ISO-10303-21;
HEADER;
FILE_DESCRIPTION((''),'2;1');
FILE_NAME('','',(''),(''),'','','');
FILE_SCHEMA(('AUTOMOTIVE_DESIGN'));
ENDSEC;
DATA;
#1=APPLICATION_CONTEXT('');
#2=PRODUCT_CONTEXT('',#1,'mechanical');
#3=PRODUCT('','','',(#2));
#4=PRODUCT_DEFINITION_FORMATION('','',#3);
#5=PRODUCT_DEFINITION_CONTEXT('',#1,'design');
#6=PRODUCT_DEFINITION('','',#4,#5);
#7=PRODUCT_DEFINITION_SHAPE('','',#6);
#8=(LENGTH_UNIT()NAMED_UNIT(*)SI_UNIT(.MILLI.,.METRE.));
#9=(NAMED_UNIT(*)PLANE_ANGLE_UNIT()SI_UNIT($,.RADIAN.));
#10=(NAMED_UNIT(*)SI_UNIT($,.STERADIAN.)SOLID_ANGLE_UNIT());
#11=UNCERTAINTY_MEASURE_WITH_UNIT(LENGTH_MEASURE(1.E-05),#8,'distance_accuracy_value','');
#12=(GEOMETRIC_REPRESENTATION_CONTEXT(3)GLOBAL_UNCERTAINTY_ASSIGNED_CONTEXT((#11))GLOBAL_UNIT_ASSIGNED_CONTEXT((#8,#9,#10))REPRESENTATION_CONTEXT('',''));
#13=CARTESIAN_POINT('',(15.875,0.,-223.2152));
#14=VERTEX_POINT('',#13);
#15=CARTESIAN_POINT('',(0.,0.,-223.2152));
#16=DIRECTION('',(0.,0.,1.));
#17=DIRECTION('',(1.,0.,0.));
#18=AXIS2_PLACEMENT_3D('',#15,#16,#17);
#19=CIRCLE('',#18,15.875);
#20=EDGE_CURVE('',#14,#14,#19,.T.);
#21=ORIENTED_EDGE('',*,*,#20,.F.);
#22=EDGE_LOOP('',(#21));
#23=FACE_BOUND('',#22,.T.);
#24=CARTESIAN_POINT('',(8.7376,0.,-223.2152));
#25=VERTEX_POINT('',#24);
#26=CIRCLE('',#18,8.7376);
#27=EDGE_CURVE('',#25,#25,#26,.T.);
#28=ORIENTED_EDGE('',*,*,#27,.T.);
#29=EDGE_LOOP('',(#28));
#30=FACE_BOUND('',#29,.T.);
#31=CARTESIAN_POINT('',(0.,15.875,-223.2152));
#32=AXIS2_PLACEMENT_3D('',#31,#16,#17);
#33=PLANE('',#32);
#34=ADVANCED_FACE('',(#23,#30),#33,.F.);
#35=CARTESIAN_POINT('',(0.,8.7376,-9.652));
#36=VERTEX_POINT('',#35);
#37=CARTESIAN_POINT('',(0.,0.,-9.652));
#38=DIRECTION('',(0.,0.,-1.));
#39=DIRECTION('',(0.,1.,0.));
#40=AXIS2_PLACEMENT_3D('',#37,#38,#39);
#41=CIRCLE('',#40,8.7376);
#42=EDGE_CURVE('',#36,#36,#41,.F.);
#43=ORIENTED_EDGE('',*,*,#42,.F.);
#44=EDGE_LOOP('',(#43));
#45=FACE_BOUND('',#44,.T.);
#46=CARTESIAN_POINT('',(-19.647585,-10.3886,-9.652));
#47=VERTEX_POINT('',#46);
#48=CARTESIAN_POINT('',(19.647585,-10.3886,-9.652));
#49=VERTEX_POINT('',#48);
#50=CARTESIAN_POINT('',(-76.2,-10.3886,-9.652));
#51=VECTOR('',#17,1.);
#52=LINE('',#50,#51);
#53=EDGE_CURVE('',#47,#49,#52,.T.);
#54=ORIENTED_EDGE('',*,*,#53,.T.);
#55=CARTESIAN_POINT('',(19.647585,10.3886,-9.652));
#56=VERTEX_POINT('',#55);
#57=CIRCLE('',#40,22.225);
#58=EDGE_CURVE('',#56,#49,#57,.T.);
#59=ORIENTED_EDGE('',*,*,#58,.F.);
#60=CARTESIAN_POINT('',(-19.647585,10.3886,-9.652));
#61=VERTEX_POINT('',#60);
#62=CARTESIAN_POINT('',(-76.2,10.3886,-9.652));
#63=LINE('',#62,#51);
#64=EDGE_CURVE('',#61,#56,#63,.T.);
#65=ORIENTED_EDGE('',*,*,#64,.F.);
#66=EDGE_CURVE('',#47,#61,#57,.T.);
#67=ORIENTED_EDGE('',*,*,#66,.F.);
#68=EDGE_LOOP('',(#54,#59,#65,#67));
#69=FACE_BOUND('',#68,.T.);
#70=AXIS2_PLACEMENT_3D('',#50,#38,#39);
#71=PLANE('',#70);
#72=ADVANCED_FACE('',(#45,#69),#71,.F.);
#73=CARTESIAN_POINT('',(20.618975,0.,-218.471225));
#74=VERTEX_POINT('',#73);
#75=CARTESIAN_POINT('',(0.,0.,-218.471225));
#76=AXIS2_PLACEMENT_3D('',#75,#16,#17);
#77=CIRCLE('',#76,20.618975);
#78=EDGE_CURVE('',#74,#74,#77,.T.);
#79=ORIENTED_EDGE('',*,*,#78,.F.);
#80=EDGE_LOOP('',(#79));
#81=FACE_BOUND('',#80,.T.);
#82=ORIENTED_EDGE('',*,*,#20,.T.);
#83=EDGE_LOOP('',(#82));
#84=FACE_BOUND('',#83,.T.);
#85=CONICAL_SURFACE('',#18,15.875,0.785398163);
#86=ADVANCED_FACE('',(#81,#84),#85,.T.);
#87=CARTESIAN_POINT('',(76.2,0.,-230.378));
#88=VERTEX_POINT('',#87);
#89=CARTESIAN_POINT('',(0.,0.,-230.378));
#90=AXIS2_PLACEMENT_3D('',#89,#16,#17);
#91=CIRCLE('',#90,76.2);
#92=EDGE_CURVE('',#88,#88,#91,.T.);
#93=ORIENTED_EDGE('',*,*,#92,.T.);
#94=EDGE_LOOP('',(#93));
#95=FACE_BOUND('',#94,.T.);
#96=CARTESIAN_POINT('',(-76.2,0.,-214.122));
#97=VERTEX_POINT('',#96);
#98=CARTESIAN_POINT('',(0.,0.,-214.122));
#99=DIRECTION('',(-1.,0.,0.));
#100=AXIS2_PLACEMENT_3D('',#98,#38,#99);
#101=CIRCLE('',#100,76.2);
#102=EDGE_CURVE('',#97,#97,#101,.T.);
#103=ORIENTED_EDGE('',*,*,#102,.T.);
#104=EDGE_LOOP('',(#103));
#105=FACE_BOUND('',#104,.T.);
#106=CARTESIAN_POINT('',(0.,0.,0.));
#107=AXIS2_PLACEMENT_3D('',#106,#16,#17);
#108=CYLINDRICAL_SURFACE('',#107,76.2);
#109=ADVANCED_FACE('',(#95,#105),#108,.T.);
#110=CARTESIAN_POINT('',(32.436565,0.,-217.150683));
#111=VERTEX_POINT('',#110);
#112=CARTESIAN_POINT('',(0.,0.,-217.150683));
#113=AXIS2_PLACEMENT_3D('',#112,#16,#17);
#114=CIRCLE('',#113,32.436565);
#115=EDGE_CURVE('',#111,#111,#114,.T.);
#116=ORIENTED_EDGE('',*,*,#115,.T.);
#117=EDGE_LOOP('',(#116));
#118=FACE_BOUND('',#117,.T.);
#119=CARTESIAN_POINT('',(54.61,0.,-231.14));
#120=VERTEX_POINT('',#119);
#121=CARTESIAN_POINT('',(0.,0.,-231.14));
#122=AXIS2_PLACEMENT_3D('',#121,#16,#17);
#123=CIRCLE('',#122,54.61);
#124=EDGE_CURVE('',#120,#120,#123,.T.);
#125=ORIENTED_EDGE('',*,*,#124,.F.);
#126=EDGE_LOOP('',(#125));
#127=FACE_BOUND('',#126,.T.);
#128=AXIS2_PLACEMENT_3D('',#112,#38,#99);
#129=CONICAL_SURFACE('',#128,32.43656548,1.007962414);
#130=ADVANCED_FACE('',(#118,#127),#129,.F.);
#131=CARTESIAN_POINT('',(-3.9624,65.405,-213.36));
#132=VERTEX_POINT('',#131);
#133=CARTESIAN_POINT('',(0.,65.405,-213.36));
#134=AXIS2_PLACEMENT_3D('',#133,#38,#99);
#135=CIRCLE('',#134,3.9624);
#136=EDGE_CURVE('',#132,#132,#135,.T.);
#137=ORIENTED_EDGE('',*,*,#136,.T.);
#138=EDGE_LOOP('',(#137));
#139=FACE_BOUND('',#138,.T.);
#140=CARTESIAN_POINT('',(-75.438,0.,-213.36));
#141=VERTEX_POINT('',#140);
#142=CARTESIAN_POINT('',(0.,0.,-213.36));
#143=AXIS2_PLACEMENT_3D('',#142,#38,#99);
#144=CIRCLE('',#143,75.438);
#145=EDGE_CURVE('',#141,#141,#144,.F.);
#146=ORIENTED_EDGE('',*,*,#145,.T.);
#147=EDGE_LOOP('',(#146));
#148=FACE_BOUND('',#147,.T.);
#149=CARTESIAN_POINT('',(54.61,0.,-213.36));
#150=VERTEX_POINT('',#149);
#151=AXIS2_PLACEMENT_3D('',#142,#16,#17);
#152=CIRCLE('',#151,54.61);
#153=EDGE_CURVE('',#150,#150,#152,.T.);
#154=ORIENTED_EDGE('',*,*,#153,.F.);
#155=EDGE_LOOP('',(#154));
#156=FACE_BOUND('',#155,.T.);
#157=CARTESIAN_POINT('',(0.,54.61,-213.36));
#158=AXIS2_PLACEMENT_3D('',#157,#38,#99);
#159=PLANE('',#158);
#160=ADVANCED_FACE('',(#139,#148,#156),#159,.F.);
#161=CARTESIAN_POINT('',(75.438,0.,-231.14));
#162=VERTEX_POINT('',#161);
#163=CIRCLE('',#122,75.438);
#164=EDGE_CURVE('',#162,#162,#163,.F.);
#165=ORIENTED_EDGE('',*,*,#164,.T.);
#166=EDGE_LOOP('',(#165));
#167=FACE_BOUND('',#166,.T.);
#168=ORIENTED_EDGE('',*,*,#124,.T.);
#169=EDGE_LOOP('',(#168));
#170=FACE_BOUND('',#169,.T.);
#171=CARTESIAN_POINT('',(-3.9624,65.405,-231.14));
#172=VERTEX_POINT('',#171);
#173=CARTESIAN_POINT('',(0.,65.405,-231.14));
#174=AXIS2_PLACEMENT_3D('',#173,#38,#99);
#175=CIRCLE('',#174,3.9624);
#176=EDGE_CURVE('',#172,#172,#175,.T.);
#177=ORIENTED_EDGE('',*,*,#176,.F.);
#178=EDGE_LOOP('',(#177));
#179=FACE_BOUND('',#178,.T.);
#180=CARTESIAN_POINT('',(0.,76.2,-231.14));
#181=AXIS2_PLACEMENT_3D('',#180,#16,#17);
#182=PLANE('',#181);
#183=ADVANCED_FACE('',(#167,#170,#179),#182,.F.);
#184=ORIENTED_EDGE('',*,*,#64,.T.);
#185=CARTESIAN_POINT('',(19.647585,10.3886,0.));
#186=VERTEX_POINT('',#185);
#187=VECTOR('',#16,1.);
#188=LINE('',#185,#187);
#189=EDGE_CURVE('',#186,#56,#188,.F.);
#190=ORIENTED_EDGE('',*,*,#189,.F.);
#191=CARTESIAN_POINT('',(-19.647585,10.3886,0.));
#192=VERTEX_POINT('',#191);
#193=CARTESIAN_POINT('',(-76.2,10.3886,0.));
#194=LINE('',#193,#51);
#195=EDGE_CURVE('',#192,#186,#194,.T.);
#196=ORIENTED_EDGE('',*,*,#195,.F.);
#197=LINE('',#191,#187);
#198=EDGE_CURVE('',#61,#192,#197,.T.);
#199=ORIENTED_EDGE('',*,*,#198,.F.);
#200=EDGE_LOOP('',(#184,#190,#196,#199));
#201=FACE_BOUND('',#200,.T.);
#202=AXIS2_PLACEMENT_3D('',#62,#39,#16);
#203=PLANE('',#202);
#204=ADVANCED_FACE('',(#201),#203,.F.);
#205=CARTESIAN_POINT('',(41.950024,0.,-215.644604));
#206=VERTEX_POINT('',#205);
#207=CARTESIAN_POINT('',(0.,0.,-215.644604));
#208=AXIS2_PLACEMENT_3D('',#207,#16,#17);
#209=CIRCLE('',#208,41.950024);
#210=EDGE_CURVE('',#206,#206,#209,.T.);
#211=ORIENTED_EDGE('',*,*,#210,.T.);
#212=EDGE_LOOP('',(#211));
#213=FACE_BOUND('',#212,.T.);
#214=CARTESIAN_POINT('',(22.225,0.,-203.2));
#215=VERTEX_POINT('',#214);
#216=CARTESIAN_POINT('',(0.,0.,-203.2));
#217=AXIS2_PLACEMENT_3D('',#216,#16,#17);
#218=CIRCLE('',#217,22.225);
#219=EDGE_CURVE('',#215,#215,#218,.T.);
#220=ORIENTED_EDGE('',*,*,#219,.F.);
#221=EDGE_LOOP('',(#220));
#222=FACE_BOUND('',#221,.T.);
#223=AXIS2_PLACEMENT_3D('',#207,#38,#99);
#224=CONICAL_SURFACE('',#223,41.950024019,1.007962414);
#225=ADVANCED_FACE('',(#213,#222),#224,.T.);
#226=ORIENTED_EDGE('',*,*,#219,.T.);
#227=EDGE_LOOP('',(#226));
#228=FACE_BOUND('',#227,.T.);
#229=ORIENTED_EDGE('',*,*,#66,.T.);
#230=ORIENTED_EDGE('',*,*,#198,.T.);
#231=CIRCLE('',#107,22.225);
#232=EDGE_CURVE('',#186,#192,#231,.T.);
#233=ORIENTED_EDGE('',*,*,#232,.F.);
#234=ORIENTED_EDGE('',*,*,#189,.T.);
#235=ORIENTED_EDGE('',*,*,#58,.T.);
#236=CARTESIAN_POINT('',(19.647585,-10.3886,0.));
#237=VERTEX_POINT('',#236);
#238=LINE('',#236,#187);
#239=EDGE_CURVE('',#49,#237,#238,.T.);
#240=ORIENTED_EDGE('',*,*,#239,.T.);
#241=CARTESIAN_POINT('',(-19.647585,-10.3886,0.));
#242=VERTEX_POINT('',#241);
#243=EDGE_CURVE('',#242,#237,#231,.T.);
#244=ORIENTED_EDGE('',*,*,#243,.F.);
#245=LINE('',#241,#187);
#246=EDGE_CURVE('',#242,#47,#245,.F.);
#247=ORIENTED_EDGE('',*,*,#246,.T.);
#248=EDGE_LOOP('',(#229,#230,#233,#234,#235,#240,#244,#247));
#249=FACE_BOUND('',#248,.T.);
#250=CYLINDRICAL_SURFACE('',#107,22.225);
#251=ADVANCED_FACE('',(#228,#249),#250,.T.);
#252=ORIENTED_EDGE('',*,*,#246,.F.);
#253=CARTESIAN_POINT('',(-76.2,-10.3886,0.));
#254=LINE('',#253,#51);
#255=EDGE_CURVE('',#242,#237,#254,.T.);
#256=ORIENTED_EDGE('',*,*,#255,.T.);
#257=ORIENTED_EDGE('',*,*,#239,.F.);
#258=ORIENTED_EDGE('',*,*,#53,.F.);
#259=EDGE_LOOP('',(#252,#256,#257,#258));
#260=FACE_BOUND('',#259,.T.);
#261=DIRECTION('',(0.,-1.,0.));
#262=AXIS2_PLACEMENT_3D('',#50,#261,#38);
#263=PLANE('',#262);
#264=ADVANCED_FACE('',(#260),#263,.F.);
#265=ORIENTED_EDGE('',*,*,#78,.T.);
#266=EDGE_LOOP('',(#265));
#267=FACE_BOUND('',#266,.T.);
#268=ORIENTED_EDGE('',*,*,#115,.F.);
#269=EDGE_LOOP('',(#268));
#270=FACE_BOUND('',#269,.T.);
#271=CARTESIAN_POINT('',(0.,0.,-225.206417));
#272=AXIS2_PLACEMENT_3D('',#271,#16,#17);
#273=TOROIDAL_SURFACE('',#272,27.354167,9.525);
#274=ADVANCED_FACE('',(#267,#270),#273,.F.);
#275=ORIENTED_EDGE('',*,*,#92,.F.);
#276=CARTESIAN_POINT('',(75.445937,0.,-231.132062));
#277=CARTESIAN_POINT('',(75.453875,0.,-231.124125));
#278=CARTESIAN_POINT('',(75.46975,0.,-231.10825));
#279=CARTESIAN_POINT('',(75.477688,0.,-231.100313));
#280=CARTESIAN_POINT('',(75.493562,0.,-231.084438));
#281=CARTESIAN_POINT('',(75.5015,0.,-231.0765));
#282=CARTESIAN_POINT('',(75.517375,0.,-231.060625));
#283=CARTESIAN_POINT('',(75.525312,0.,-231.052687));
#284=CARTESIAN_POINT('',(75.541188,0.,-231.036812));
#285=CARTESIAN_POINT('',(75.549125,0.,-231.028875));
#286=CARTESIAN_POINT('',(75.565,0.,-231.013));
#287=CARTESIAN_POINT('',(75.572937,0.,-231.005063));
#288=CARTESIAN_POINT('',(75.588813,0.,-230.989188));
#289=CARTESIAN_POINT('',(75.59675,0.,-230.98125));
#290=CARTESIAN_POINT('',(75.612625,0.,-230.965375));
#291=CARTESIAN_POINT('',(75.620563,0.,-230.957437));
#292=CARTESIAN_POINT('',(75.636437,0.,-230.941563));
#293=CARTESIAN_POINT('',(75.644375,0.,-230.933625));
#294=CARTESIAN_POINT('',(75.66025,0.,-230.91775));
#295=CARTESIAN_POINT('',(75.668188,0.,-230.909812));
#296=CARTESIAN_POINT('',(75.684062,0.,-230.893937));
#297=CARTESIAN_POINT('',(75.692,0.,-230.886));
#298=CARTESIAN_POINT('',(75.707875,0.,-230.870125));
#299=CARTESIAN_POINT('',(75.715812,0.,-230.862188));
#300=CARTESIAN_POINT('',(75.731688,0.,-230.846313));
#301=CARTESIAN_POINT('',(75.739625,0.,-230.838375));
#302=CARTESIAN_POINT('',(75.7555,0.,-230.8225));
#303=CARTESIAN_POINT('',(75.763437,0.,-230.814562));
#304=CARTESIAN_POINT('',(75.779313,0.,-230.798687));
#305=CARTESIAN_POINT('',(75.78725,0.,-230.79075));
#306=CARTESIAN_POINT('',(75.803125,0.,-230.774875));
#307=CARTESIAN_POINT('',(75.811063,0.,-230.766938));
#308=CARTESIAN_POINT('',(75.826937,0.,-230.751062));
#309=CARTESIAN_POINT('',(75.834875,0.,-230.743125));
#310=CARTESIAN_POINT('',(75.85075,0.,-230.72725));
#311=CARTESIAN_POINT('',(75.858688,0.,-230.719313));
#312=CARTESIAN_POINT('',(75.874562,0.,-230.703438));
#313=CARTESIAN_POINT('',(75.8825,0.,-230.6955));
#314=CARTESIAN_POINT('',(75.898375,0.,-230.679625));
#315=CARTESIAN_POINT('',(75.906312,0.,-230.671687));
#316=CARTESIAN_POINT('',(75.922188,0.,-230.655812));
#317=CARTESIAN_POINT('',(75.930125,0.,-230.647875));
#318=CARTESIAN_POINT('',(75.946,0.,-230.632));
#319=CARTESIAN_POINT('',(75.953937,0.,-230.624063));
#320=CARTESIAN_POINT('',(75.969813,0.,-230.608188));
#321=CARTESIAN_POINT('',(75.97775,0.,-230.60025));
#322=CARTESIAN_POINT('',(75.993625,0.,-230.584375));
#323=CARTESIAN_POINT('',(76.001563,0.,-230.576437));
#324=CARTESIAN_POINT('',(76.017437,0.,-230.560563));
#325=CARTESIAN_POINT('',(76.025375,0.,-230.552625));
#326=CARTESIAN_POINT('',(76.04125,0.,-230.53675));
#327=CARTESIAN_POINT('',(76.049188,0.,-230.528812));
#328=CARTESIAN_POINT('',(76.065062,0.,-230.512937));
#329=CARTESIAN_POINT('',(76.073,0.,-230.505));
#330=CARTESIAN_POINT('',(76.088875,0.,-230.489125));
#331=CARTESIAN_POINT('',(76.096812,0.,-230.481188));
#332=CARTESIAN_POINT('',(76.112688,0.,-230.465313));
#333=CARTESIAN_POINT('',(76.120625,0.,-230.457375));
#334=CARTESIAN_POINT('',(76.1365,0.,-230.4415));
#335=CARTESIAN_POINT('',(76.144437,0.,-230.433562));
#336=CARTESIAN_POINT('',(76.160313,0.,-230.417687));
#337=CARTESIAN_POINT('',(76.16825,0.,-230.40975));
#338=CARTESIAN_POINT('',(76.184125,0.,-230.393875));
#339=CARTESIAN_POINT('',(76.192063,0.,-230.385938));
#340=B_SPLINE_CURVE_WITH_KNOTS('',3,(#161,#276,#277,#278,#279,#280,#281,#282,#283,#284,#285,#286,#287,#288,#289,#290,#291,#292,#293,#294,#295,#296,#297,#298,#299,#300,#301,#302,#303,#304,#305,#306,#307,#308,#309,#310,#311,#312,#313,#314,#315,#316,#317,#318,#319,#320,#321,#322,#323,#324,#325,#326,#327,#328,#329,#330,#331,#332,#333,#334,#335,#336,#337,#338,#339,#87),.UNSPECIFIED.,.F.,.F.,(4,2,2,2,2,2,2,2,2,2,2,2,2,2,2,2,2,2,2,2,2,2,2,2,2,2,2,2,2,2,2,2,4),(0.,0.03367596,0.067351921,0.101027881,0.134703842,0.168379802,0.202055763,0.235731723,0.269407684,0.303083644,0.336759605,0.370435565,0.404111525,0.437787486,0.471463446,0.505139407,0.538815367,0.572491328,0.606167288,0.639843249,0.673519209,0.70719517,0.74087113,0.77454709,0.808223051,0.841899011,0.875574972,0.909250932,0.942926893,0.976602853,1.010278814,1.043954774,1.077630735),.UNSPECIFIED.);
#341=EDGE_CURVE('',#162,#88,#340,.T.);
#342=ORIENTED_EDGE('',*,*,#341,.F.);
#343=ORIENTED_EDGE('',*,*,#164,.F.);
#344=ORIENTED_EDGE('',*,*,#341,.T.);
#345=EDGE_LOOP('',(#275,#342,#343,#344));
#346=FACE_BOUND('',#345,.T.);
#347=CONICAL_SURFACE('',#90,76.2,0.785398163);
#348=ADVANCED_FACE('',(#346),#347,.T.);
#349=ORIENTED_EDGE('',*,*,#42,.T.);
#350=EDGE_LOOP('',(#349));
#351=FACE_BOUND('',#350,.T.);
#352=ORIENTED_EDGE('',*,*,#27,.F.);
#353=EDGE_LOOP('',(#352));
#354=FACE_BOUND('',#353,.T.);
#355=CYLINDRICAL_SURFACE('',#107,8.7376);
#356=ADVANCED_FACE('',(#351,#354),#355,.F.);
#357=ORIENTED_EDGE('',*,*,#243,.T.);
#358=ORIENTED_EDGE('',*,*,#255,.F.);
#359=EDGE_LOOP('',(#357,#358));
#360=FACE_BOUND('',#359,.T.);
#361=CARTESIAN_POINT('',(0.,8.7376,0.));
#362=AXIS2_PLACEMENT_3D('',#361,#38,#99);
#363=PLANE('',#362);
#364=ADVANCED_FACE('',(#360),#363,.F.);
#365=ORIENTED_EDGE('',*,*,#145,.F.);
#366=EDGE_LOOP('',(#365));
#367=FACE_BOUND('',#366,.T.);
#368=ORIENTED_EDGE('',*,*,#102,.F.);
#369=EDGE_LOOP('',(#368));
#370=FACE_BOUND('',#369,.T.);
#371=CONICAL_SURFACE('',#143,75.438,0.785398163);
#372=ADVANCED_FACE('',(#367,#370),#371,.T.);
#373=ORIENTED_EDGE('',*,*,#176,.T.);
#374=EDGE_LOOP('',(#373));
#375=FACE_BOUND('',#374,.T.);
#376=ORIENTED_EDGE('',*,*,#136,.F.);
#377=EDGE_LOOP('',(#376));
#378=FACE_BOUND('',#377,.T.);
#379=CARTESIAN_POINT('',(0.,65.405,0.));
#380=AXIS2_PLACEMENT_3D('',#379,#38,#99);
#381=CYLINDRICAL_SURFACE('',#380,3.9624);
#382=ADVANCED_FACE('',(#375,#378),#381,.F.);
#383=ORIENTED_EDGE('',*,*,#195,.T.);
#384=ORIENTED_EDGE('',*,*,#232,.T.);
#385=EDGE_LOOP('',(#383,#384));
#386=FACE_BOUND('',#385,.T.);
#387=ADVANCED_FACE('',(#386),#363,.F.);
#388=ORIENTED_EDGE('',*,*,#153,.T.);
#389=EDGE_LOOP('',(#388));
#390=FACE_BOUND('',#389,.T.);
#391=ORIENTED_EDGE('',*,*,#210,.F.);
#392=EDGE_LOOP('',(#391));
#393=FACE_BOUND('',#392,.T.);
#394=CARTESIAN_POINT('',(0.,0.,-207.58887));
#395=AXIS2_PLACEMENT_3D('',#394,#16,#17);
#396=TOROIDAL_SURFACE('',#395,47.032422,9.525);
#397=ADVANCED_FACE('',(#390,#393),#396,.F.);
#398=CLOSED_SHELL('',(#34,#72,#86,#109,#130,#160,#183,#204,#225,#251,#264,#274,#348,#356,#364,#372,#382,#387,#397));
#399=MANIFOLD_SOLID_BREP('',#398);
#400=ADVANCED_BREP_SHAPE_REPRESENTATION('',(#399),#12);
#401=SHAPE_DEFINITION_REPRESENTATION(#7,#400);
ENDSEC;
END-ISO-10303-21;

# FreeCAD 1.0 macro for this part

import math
import FreeCAD as App
import Part
import Sketcher
from FreeCAD import Vector
Q = App.Units.Quantity


def edges_at(feature, points):
    """Names of the edges that pass closest to the given points."""
    edges = feature.Shape.Edges
    near = lambda p: min(range(len(edges)), key=lambda i: edges[i].distToShape(Part.Vertex(*p))[0])
    return sorted({f"Edge{near(p) + 1}" for p in points})

doc = App.newDocument("Part")
body = doc.addObject("PartDesign::Body", "Body")

sketch1 = body.newObject("Sketcher::SketchObject", "Sketch")
sketch1.AttachmentSupport = (doc.getObject("YZ_Plane"), [""])
sketch1.MapMode = "FlatFace"
sketch1.addGeometry([
    Part.LineSegment(Vector(22, 0, 0), Vector(9, 0, 0)),
    Part.LineSegment(Vector(9, 0, 0), Vector(9, -223, 0)),
    Part.LineSegment(Vector(9, -223, 0), Vector(16, -223, 0)),
    Part.LineSegment(Vector(16, -223, 0), Vector(21, -218, 0)),
    Part.ArcOfCircle(Part.Circle(Vector(27, -225, 0), Vector(0, 0, 1), 10), math.radians(58), math.radians(135)),
    Part.LineSegment(Vector(32, -217, 0), Vector(55, -231, 0)),
    Part.LineSegment(Vector(55, -231, 0), Vector(76, -231, 0)),
    Part.LineSegment(Vector(76, -231, 0), Vector(76, -213, 0)),
    Part.LineSegment(Vector(76, -213, 0), Vector(55, -213, 0)),
    Part.ArcOfCircle(Part.Circle(Vector(47, -208, 0), Vector(0, 0, 1), 10), math.radians(-122), math.radians(-37)),
    Part.LineSegment(Vector(42, -216, 0), Vector(22, -203, 0)),
    Part.LineSegment(Vector(22, -203, 0), Vector(22, 0, 0)),
], False)
sketch1.addConstraint([
    Sketcher.Constraint("Coincident", 0, 2, 1, 1),
    Sketcher.Constraint("Coincident", 1, 2, 2, 1),
    Sketcher.Constraint("Coincident", 2, 2, 3, 1),
    Sketcher.Constraint("Tangent", 3, 2, 4, 2),
    Sketcher.Constraint("Tangent", 4, 1, 5, 1),
    Sketcher.Constraint("Coincident", 5, 2, 6, 1),
    Sketcher.Constraint("Coincident", 6, 2, 7, 1),
    Sketcher.Constraint("Coincident", 7, 2, 8, 1),
    Sketcher.Constraint("Coincident", 8, 2, 9, 2),
    Sketcher.Constraint("Tangent", 9, 1, 10, 1),
    Sketcher.Constraint("Coincident", 10, 2, 11, 1),
    Sketcher.Constraint("Coincident", 11, 2, 0, 1),
    Sketcher.Constraint("Horizontal", 0),
    Sketcher.Constraint("Vertical", 1),
    Sketcher.Constraint("Horizontal", 2),
    Sketcher.Constraint("Horizontal", 6),
    Sketcher.Constraint("Vertical", 7),
    Sketcher.Constraint("Horizontal", 8),
    Sketcher.Constraint("Vertical", 11),
    Sketcher.Constraint("Equal", 4, 9),
    Sketcher.Constraint("PointOnObject", 0, 2, -1),
    Sketcher.Constraint("Parallel", 5, 10),
    Sketcher.Constraint("Vertical", 5, 2, 8, 2),
    Sketcher.Constraint("DistanceY", 11, 1, 11, 2, Q("8 in")),
    Sketcher.Constraint("DistanceY", 7, 1, 7, 2, Q("0.7 in")),
    Sketcher.Constraint("DistanceX", -1, 1, 6, 2, Q("3 in")),
    Sketcher.Constraint("Angle", 3, Q("45 deg")),
    Sketcher.Constraint("Radius", 4, Q("0.375 in")),
    Sketcher.Constraint("DistanceX", 6, 1, 6, 2, Q("0.85 in")),
    Sketcher.Constraint("DistanceY", 5, 2, -1, 1, Q("9.1 in")),
    Sketcher.Constraint("DistanceX", 0, 2, 0, 1, Q("0.531 in")),
    Sketcher.Constraint("DistanceX", 2, 1, 2, 2, Q("0.281 in")),
    Sketcher.Constraint("DistanceY", 1, 2, 1, 1, Q("8.788 in")),
    Sketcher.Constraint("DistanceX", -1, 1, 0, 2, Q("0.344 in")),
    Sketcher.Constraint("DistanceX", 4, 3, 4, 1, 5.082398),
])
revolution = body.newObject("PartDesign::Revolution", "Revolution")
revolution.Profile = sketch1
revolution.ReferenceAxis = (sketch1, ["V_Axis"])
revolution.Angle = 360
doc.recompute()

chamfer = body.newObject("PartDesign::Chamfer", "Chamfer")
chamfer.Base = (revolution, edges_at(revolution, [(-76.2, 0, -231.14), (-76.2, 0, -213.36)]))
chamfer.Size = Q("0.03 in")

sketch2 = body.newObject("Sketcher::SketchObject", "Sketch001")
sketch2.AttachmentSupport = (doc.getObject("YZ_Plane"), [""])
sketch2.MapMode = "FlatFace"
sketch2.addGeometry([
    Part.LineSegment(Vector(10, 0, 0), Vector(-10, 0, 0)),
    Part.LineSegment(Vector(-10, 0, 0), Vector(-10, -10, 0)),
    Part.LineSegment(Vector(-10, -10, 0), Vector(10, -10, 0)),
    Part.LineSegment(Vector(10, -10, 0), Vector(10, 0, 0)),
], False)
sketch2.addConstraint([
    Sketcher.Constraint("Coincident", 0, 2, 1, 1),
    Sketcher.Constraint("Coincident", 1, 2, 2, 1),
    Sketcher.Constraint("Coincident", 2, 2, 3, 1),
    Sketcher.Constraint("Coincident", 3, 2, 0, 1),
    Sketcher.Constraint("Horizontal", 0),
    Sketcher.Constraint("Vertical", 1),
    Sketcher.Constraint("Horizontal", 2),
    Sketcher.Constraint("Vertical", 3),
    Sketcher.Constraint("Symmetric", 0, 2, 3, 2, -1, 1),
    Sketcher.Constraint("DistanceY", 1, 2, 1, 1, Q("0.38 in")),
    Sketcher.Constraint("DistanceX", 0, 2, 0, 1, Q("0.818 in")),
])
pocket1 = body.newObject("PartDesign::Pocket", "Pocket")
pocket1.Profile = sketch2
pocket1.Type = "ThroughAll"
pocket1.Midplane = True

sketch3 = body.newObject("Sketcher::SketchObject", "Sketch002")
sketch3.AttachmentSupport = (doc.getObject("XY_Plane"), [""])
sketch3.MapMode = "FlatFace"
sketch3.AttachmentOffset = App.Placement(Vector(0, 0, -9.1 * 25.4), App.Rotation())
sketch3.addGeometry(Part.Circle(Vector(0, 65.4, 0), Vector(0, 0, 1), 4), False)
sketch3.addConstraint([
    Sketcher.Constraint("PointOnObject", 0, 3, -2),
    Sketcher.Constraint("Diameter", 0, Q("0.312 in")),
    Sketcher.Constraint("DistanceY", -1, 1, 0, 3, Q("2.575 in")),
])
pocket2 = body.newObject("PartDesign::Pocket", "Pocket001")
pocket2.Profile = sketch3
pocket2.Type = "ThroughAll"
pocket2.Reversed = True

doc.recompute()
